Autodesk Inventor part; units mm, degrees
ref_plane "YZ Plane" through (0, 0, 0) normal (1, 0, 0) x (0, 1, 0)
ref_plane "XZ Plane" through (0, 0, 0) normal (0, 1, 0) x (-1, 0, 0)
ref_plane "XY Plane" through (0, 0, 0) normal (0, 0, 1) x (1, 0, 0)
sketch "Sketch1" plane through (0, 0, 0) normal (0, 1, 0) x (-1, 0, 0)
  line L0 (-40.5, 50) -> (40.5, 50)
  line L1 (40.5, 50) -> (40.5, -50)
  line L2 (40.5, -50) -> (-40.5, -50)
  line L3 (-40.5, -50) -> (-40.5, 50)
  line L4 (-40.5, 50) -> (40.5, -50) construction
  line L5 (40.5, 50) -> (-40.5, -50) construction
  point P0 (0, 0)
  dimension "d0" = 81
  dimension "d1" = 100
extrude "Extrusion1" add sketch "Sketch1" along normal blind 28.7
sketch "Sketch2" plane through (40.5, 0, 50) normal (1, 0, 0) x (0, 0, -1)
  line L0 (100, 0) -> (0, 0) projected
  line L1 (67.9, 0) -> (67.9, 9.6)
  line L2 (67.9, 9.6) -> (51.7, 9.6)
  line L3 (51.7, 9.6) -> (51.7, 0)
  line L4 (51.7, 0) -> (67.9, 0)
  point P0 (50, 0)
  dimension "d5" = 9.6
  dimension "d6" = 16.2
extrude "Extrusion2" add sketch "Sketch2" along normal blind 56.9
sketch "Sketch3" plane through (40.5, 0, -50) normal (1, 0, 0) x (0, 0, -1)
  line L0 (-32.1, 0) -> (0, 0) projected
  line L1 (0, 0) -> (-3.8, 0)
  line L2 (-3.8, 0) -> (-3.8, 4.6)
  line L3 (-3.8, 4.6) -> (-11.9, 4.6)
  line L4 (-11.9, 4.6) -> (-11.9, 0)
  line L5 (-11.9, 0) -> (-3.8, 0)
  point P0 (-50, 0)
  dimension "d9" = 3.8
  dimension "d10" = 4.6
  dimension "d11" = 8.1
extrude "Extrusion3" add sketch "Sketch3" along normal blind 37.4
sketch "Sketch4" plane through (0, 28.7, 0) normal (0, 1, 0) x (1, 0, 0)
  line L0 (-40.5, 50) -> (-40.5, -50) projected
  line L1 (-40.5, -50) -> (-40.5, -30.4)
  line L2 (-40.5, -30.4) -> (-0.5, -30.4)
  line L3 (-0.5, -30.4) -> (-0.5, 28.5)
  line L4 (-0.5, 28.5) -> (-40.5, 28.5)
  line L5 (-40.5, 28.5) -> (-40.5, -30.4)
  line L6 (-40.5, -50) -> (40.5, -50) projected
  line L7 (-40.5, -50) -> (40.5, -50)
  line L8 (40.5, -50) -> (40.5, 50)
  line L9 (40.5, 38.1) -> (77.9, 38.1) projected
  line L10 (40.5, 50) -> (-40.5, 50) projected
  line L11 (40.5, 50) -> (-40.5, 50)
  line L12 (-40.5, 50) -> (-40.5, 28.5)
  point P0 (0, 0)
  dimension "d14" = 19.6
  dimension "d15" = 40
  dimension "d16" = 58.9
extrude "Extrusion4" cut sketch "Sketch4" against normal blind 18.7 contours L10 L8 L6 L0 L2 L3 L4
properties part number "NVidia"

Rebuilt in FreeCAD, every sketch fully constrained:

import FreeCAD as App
import Part
import Sketcher
from FreeCAD import Vector
Q = App.Units.Quantity


def add_polygon(sketch, points):
    """Adds a closed chain of lines whose ends are joined by coincident constraints."""
    first, n = sketch.GeometryCount, len(points)
    for a, b in zip(points, points[1:] + points[:1]):
        sketch.addGeometry(Part.LineSegment(App.Vector(*a, 0), App.Vector(*b, 0)), False)
    for i in range(n):
        sketch.addConstraint(Sketcher.Constraint("Coincident", first + i, 2, first + (i + 1) % n, 1))

doc = App.newDocument("Part")
params = doc.addObject("Spreadsheet::Sheet", "Params")
for row, (alias, value) in enumerate([
    ("sketch1_width", "81 mm"),
    ("sketch1_height", "100 mm"),
    ("pad1_length", "28.7 mm"),
    ("sketch2_width", "9.6 mm"),
    ("sketch2_height", "16.2 mm"),
    ("pad2_length", "56.9 mm"),
    ("sketch3_width", "4.6 mm"),
    ("sketch3_height", "8.1 mm"),
    ("pad3_length", "37.4 mm"),
    ("sketch4_width", "40 mm"),
    ("sketch4_height", "58.9 mm"),
    ("sketch4_height2", "19.6 mm"),
    ("sketch4_width2", "81 mm"),
    ("sketch4_height3", "100 mm"),
    ("pocket1_length", "18.7 mm"),
], start=1):
    params.set(f"A{row}", alias)
    params.set(f"B{row}", "=" + value)
    params.setAlias(f"B{row}", alias)

body = doc.addObject("PartDesign::Body", "Body")

sketch1 = body.newObject("Sketcher::SketchObject", "Sketch")
sketch1.AttachmentSupport = (doc.getObject("XZ_Plane"), [""])
sketch1.MapMode = "FlatFace"
add_polygon(sketch1, [(-40, 50), (40, 50), (40, -50), (-40, -50)])
sketch1.addConstraint([
    Sketcher.Constraint("Horizontal", 0),
    Sketcher.Constraint("Vertical", 1),
    Sketcher.Constraint("Horizontal", 2),
    Sketcher.Constraint("Vertical", 3),
    Sketcher.Constraint("Symmetric", 0, 2, 2, 2, -1, 1),
    Sketcher.Constraint("DistanceX", 0, 1, 0, 2, Q("81 mm")),
    Sketcher.Constraint("DistanceY", 1, 2, 1, 1, Q("100 mm")),
])
sketch1.setExpression("Constraints[9]", "Params.sketch1_width")
sketch1.setExpression("Constraints[10]", "Params.sketch1_height")
pad1 = body.newObject("PartDesign::Pad", "Pad")
pad1.Profile = sketch1
pad1.setExpression("Length", "Params.pad1_length")
pad1.Reversed = True

sketch2 = body.newObject("Sketcher::SketchObject", "Sketch001")
sketch2.AttachmentSupport = (doc.getObject("YZ_Plane"), [""])
sketch2.MapMode = "FlatFace"
sketch2.AttachmentOffset = App.Placement(Vector(0, 0, 40.5), App.Rotation())
add_polygon(sketch2, [(0, -2), (0, -18), (10, -18), (10, -2)])
sketch2.addConstraint([
    Sketcher.Constraint("Vertical", 0),
    Sketcher.Constraint("Horizontal", 1),
    Sketcher.Constraint("Vertical", 2),
    Sketcher.Constraint("Horizontal", 3),
    Sketcher.Constraint("PointOnObject", 0, 2, -2),
    Sketcher.Constraint("DistanceX", 1, 1, 1, 2, Q("9.6 mm")),
    Sketcher.Constraint("DistanceY", 0, 2, 0, 1, Q("16.2 mm")),
    Sketcher.Constraint("DistanceY", 0, 2, -1, 1, Q("17.9 mm")),
])
sketch2.setExpression("Constraints[9]", "Params.sketch2_width")
sketch2.setExpression("Constraints[10]", "Params.sketch2_height")
pad2 = body.newObject("PartDesign::Pad", "Pad001")
pad2.Profile = sketch2
pad2.setExpression("Length", "Params.pad2_length")

sketch3 = body.newObject("Sketcher::SketchObject", "Sketch002")
sketch3.AttachmentSupport = (doc.getObject("YZ_Plane"), [""])
sketch3.MapMode = "FlatFace"
sketch3.AttachmentOffset = App.Placement(Vector(0, 0, 40.5), App.Rotation())
add_polygon(sketch3, [(4.6, -38.1), (0, -38.1), (0, -46.2), (4.6, -46.2)])
sketch3.addConstraint([
    Sketcher.Constraint("Horizontal", 0),
    Sketcher.Constraint("Vertical", 1),
    Sketcher.Constraint("Horizontal", 2),
    Sketcher.Constraint("Vertical", 3),
    Sketcher.Constraint("PointOnObject", 0, 2, -2),
    Sketcher.Constraint("DistanceX", 0, 2, 0, 1, Q("4.6 mm")),
    Sketcher.Constraint("DistanceY", 1, 2, 1, 1, Q("8.1 mm")),
    Sketcher.Constraint("DistanceY", 0, 2, -1, 1, Q("38.1 mm")),
])
sketch3.setExpression("Constraints[9]", "Params.sketch3_width")
sketch3.setExpression("Constraints[10]", "Params.sketch3_height")
pad3 = body.newObject("PartDesign::Pad", "Pad002")
pad3.Profile = sketch3
pad3.setExpression("Length", "Params.pad3_length")

sketch4 = body.newObject("Sketcher::SketchObject", "Sketch003")
sketch4.AttachmentSupport = (doc.getObject("XZ_Plane"), [""])
sketch4.MapMode = "FlatFace"
sketch4.AttachmentOffset = App.Placement(Vector(0, 0, -28.7), App.Rotation())
add_polygon(sketch4, [(40, -50), (-40, -50), (-40, -28), (0, -28), (0, 30), (-40, 30), (-40, 50), (40, 50)])
sketch4.addConstraint([
    Sketcher.Constraint("Horizontal", 0),
    Sketcher.Constraint("Vertical", 1),
    Sketcher.Constraint("Horizontal", 2),
    Sketcher.Constraint("Vertical", 3),
    Sketcher.Constraint("Horizontal", 4),
    Sketcher.Constraint("Vertical", 5),
    Sketcher.Constraint("Horizontal", 6),
    Sketcher.Constraint("Vertical", 7),
    Sketcher.Constraint("Symmetric", 0, 2, 6, 2, -1, 1),
    Sketcher.Constraint("Vertical", 1, 2, 4, 2),
    Sketcher.Constraint("DistanceX", 2, 1, 2, 2, Q("40 mm")),
    Sketcher.Constraint("DistanceY", 3, 1, 3, 2, Q("58.9 mm")),
    Sketcher.Constraint("DistanceY", 5, 1, 5, 2, Q("19.6 mm")),
    Sketcher.Constraint("DistanceX", 0, 2, 0, 1, Q("81 mm")),
    Sketcher.Constraint("DistanceY", 7, 2, 7, 1, Q("100 mm")),
])
sketch4.setExpression("Constraints[18]", "Params.sketch4_width")
sketch4.setExpression("Constraints[19]", "Params.sketch4_height")
sketch4.setExpression("Constraints[20]", "Params.sketch4_height2")
sketch4.setExpression("Constraints[21]", "Params.sketch4_width2")
sketch4.setExpression("Constraints[22]", "Params.sketch4_height3")
pocket1 = body.newObject("PartDesign::Pocket", "Pocket")
pocket1.Profile = sketch4
pocket1.setExpression("Length", "Params.pocket1_length")
pocket1.Reversed = True

doc.recompute()
